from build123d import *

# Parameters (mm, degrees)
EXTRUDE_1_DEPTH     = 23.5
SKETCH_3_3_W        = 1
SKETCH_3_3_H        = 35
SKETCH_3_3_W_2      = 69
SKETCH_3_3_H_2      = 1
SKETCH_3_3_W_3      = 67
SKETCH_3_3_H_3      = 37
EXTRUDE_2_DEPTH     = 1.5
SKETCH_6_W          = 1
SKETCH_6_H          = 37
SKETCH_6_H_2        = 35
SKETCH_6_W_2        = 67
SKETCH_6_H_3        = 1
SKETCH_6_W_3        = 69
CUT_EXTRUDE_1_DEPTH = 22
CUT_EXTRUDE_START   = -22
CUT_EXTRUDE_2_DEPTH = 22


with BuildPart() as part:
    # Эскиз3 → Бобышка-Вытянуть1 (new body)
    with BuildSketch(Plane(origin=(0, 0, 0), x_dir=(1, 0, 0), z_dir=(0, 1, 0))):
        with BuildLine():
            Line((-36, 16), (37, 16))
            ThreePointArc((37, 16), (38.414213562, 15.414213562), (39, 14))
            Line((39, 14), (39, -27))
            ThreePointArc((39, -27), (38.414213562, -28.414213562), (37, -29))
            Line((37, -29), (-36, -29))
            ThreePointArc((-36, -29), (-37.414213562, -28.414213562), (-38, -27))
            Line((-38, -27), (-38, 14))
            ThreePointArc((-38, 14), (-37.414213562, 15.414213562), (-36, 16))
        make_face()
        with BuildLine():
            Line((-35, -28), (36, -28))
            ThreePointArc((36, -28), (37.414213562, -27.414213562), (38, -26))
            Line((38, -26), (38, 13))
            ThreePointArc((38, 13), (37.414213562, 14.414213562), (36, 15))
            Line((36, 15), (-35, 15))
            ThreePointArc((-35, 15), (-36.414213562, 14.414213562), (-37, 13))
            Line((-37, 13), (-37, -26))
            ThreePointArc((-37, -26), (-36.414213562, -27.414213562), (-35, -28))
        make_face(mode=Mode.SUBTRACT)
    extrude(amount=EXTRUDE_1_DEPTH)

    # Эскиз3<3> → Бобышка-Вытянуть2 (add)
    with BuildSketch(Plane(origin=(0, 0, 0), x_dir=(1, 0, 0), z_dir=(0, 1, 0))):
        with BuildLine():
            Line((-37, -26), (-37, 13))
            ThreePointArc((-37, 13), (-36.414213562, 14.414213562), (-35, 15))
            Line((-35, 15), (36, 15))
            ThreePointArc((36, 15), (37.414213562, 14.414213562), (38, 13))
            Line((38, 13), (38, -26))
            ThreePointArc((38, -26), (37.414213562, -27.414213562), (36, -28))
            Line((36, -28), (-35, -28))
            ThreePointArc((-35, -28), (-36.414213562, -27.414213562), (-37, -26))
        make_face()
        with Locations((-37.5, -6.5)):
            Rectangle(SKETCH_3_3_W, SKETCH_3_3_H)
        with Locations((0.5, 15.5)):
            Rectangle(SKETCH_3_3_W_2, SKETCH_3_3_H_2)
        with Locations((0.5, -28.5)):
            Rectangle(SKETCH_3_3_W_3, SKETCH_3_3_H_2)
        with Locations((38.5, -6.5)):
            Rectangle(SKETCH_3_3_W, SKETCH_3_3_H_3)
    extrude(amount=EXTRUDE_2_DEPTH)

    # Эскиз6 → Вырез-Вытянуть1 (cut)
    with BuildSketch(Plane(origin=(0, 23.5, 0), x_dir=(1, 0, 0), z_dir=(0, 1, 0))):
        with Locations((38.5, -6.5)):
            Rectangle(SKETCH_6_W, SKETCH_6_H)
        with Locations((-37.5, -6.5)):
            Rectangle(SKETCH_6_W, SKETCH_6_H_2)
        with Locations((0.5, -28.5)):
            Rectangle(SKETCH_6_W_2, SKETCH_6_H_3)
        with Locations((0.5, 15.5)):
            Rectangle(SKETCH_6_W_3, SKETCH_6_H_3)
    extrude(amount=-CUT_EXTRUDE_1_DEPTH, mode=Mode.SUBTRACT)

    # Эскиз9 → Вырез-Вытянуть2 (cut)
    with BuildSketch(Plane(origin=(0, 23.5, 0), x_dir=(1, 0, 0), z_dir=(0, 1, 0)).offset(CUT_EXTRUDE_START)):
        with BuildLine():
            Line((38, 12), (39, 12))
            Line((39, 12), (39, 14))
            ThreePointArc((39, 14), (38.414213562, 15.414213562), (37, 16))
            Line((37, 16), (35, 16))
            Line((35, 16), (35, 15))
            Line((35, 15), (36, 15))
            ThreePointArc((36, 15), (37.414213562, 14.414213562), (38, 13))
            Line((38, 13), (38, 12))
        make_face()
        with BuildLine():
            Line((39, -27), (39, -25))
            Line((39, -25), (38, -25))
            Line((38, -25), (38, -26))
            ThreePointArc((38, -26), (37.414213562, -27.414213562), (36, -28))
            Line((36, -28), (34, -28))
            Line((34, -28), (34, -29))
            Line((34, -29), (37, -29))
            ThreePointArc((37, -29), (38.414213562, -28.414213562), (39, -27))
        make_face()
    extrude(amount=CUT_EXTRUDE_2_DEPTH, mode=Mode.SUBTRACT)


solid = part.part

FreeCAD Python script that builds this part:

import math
import FreeCAD as App
import Part
import Sketcher

V = App.Vector
Q = App.Units.Quantity

doc = App.newDocument("Part")
body = doc.addObject("PartDesign::Body", "Body")

# Sketch on XZ plane
sketch1 = doc.addObject("Sketcher::SketchObject", "Sketch")
body.addObject(sketch1)
sketch1.AttachmentSupport = (doc.XZ_Plane, [""])
sketch1.MapMode = "FlatFace"
sketch1.addGeometry(Part.LineSegment(V(37, -16, 0), V(-36, -16, 0)), False)
sketch1.addGeometry(Part.ArcOfCircle(Part.Circle(V(-36, -14, 0), V(0, 0, 1), 2), math.radians(-180), math.radians(-90)), False)
sketch1.addGeometry(Part.LineSegment(V(-38, -14, 0), V(-38, 27, 0)), False)
sketch1.addGeometry(Part.ArcOfCircle(Part.Circle(V(-36, 27, 0), V(0, 0, 1), 2), math.radians(90), math.radians(180)), False)
sketch1.addGeometry(Part.LineSegment(V(-36, 29, 0), V(37, 29, 0)), False)
sketch1.addGeometry(Part.ArcOfCircle(Part.Circle(V(37, 27, 0), V(0, 0, 1), 2), math.radians(0), math.radians(90)), False)
sketch1.addGeometry(Part.LineSegment(V(39, 27, 0), V(39, -14, 0)), False)
sketch1.addGeometry(Part.ArcOfCircle(Part.Circle(V(37, -14, 0), V(0, 0, 1), 2), math.radians(-90), math.radians(0)), False)
sketch1.addGeometry(Part.ArcOfCircle(Part.Circle(V(-35, 26, 0), V(0, 0, 1), 2), math.radians(90), math.radians(180)), False)
sketch1.addGeometry(Part.LineSegment(V(-37, 26, 0), V(-37, -13, 0)), False)
sketch1.addGeometry(Part.ArcOfCircle(Part.Circle(V(-35, -13, 0), V(0, 0, 1), 2), math.radians(-180), math.radians(-90)), False)
sketch1.addGeometry(Part.LineSegment(V(-35, -15, 0), V(36, -15, 0)), False)
sketch1.addGeometry(Part.ArcOfCircle(Part.Circle(V(36, -13, 0), V(0, 0, 1), 2), math.radians(-90), math.radians(0)), False)
sketch1.addGeometry(Part.LineSegment(V(38, -13, 0), V(38, 26, 0)), False)
sketch1.addGeometry(Part.ArcOfCircle(Part.Circle(V(36, 26, 0), V(0, 0, 1), 2), math.radians(0), math.radians(90)), False)
sketch1.addGeometry(Part.LineSegment(V(36, 28, 0), V(-35, 28, 0)), False)
sketch1.addConstraint(Sketcher.Constraint("Tangent", 0, 2, 1, 2))
sketch1.addConstraint(Sketcher.Constraint("Tangent", 1, 1, 2, 1))
sketch1.addConstraint(Sketcher.Constraint("Tangent", 2, 2, 3, 2))
sketch1.addConstraint(Sketcher.Constraint("Tangent", 3, 1, 4, 1))
sketch1.addConstraint(Sketcher.Constraint("Tangent", 4, 2, 5, 2))
sketch1.addConstraint(Sketcher.Constraint("Tangent", 5, 1, 6, 1))
sketch1.addConstraint(Sketcher.Constraint("Tangent", 6, 2, 7, 2))
sketch1.addConstraint(Sketcher.Constraint("Tangent", 7, 1, 0, 1))
sketch1.addConstraint(Sketcher.Constraint("Tangent", 8, 2, 9, 1))
sketch1.addConstraint(Sketcher.Constraint("Tangent", 9, 2, 10, 1))
sketch1.addConstraint(Sketcher.Constraint("Tangent", 10, 2, 11, 1))
sketch1.addConstraint(Sketcher.Constraint("Tangent", 11, 2, 12, 1))
sketch1.addConstraint(Sketcher.Constraint("Tangent", 12, 2, 13, 1))
sketch1.addConstraint(Sketcher.Constraint("Tangent", 13, 2, 14, 1))
sketch1.addConstraint(Sketcher.Constraint("Tangent", 14, 2, 15, 1))
sketch1.addConstraint(Sketcher.Constraint("Tangent", 15, 2, 8, 1))
sketch1.addConstraint(Sketcher.Constraint("Horizontal", 0))
sketch1.addConstraint(Sketcher.Constraint("Vertical", 2))
sketch1.addConstraint(Sketcher.Constraint("Horizontal", 4))
sketch1.addConstraint(Sketcher.Constraint("Vertical", 6))
sketch1.addConstraint(Sketcher.Constraint("Vertical", 9))
sketch1.addConstraint(Sketcher.Constraint("Horizontal", 11))
sketch1.addConstraint(Sketcher.Constraint("Vertical", 13))
sketch1.addConstraint(Sketcher.Constraint("Horizontal", 15))
sketch1.addConstraint(Sketcher.Constraint("Equal", 1, 3))
sketch1.addConstraint(Sketcher.Constraint("Equal", 3, 5))
sketch1.addConstraint(Sketcher.Constraint("Equal", 5, 7))
sketch1.addConstraint(Sketcher.Constraint("Equal", 7, 8))
sketch1.addConstraint(Sketcher.Constraint("Equal", 8, 10))
sketch1.addConstraint(Sketcher.Constraint("Equal", 10, 12))
sketch1.addConstraint(Sketcher.Constraint("Equal", 12, 14))
sketch1.addConstraint(Sketcher.Constraint("Radius", 1, Q("2 mm")))
sketch1.addConstraint(Sketcher.Constraint("DistanceX", 0, 2, 0, 1, Q("73 mm")))
sketch1.addConstraint(Sketcher.Constraint("DistanceX", 11, 1, 11, 2, Q("71 mm")))
sketch1.addConstraint(Sketcher.Constraint("DistanceY", 2, 1, 2, 2, Q("41 mm")))
sketch1.addConstraint(Sketcher.Constraint("DistanceY", 9, 2, 9, 1, Q("39 mm")))
sketch1.addConstraint(Sketcher.Constraint("DistanceX", 1, 3, -1, 1, Q("36 mm")))
sketch1.addConstraint(Sketcher.Constraint("DistanceY", 1, 3, -1, 1, Q("14 mm")))
sketch1.addConstraint(Sketcher.Constraint("DistanceX", 8, 3, -1, 1, Q("35 mm")))
sketch1.addConstraint(Sketcher.Constraint("DistanceY", -1, 1, 8, 3, Q("26 mm")))
pad1 = doc.addObject("PartDesign::Pad", "Pad")
body.addObject(pad1)
pad1.Profile = sketch1
pad1.Length = 23.5
pad1.Reversed = True

# Sketch on XZ plane
sketch2 = doc.addObject("Sketcher::SketchObject", "Sketch001")
body.addObject(sketch2)
sketch2.AttachmentSupport = (doc.XZ_Plane, [""])
sketch2.MapMode = "FlatFace"
sketch2.addGeometry(Part.LineSegment(V(-37, 24, 0), V(-37, 26, 0)), False)
sketch2.addGeometry(Part.ArcOfCircle(Part.Circle(V(-35, 26, 0), V(0, 0, 1), 2), math.radians(90), math.radians(180)), False)
sketch2.addGeometry(Part.LineSegment(V(-35, 28, 0), V(-33, 28, 0)), False)
sketch2.addGeometry(Part.LineSegment(V(-33, 28, 0), V(-33, 29, 0)), False)
sketch2.addGeometry(Part.LineSegment(V(-33, 29, 0), V(34, 29, 0)), False)
sketch2.addGeometry(Part.LineSegment(V(34, 29, 0), V(34, 28, 0)), False)
sketch2.addGeometry(Part.LineSegment(V(34, 28, 0), V(36, 28, 0)), False)
sketch2.addGeometry(Part.ArcOfCircle(Part.Circle(V(36, 26, 0), V(0, 0, 1), 2), math.radians(0), math.radians(90)), False)
sketch2.addGeometry(Part.LineSegment(V(38, 26, 0), V(38, 25, 0)), False)
sketch2.addGeometry(Part.LineSegment(V(38, 25, 0), V(39, 25, 0)), False)
sketch2.addGeometry(Part.LineSegment(V(39, 25, 0), V(39, -12, 0)), False)
sketch2.addGeometry(Part.LineSegment(V(39, -12, 0), V(38, -12, 0)), False)
sketch2.addGeometry(Part.LineSegment(V(38, -12, 0), V(38, -13, 0)), False)
sketch2.addGeometry(Part.ArcOfCircle(Part.Circle(V(36, -13, 0), V(0, 0, 1), 2), math.radians(-90), math.radians(0)), False)
sketch2.addGeometry(Part.LineSegment(V(36, -15, 0), V(35, -15, 0)), False)
sketch2.addGeometry(Part.LineSegment(V(35, -15, 0), V(35, -16, 0)), False)
sketch2.addGeometry(Part.LineSegment(V(35, -16, 0), V(-34, -16, 0)), False)
sketch2.addGeometry(Part.LineSegment(V(-34, -16, 0), V(-34, -15, 0)), False)
sketch2.addGeometry(Part.LineSegment(V(-34, -15, 0), V(-35, -15, 0)), False)
sketch2.addGeometry(Part.ArcOfCircle(Part.Circle(V(-35, -13, 0), V(0, 0, 1), 2), math.radians(-180), math.radians(-90)), False)
sketch2.addGeometry(Part.LineSegment(V(-37, -13, 0), V(-37, -11, 0)), False)
sketch2.addGeometry(Part.LineSegment(V(-37, -11, 0), V(-38, -11, 0)), False)
sketch2.addGeometry(Part.LineSegment(V(-38, -11, 0), V(-38, 24, 0)), False)
sketch2.addGeometry(Part.LineSegment(V(-38, 24, 0), V(-37, 24, 0)), False)
sketch2.addConstraint(Sketcher.Constraint("Tangent", 0, 2, 1, 2))
sketch2.addConstraint(Sketcher.Constraint("Tangent", 1, 1, 2, 1))
sketch2.addConstraint(Sketcher.Constraint("Coincident", 2, 2, 3, 1))
sketch2.addConstraint(Sketcher.Constraint("Coincident", 3, 2, 4, 1))
sketch2.addConstraint(Sketcher.Constraint("Coincident", 4, 2, 5, 1))
sketch2.addConstraint(Sketcher.Constraint("Coincident", 5, 2, 6, 1))
sketch2.addConstraint(Sketcher.Constraint("Tangent", 6, 2, 7, 2))
sketch2.addConstraint(Sketcher.Constraint("Tangent", 7, 1, 8, 1))
sketch2.addConstraint(Sketcher.Constraint("Coincident", 8, 2, 9, 1))
sketch2.addConstraint(Sketcher.Constraint("Coincident", 9, 2, 10, 1))
sketch2.addConstraint(Sketcher.Constraint("Coincident", 10, 2, 11, 1))
sketch2.addConstraint(Sketcher.Constraint("Coincident", 11, 2, 12, 1))
sketch2.addConstraint(Sketcher.Constraint("Tangent", 12, 2, 13, 2))
sketch2.addConstraint(Sketcher.Constraint("Tangent", 13, 1, 14, 1))
sketch2.addConstraint(Sketcher.Constraint("Coincident", 14, 2, 15, 1))
sketch2.addConstraint(Sketcher.Constraint("Coincident", 15, 2, 16, 1))
sketch2.addConstraint(Sketcher.Constraint("Coincident", 16, 2, 17, 1))
sketch2.addConstraint(Sketcher.Constraint("Coincident", 17, 2, 18, 1))
sketch2.addConstraint(Sketcher.Constraint("Tangent", 18, 2, 19, 2))
sketch2.addConstraint(Sketcher.Constraint("Tangent", 19, 1, 20, 1))
sketch2.addConstraint(Sketcher.Constraint("Coincident", 20, 2, 21, 1))
sketch2.addConstraint(Sketcher.Constraint("Coincident", 21, 2, 22, 1))
sketch2.addConstraint(Sketcher.Constraint("Coincident", 22, 2, 23, 1))
sketch2.addConstraint(Sketcher.Constraint("Coincident", 23, 2, 0, 1))
sketch2.addConstraint(Sketcher.Constraint("Vertical", 0))
sketch2.addConstraint(Sketcher.Constraint("Horizontal", 2))
sketch2.addConstraint(Sketcher.Constraint("Vertical", 3))
sketch2.addConstraint(Sketcher.Constraint("Horizontal", 4))
sketch2.addConstraint(Sketcher.Constraint("Vertical", 5))
sketch2.addConstraint(Sketcher.Constraint("Horizontal", 6))
sketch2.addConstraint(Sketcher.Constraint("Vertical", 8))
sketch2.addConstraint(Sketcher.Constraint("Horizontal", 9))
sketch2.addConstraint(Sketcher.Constraint("Vertical", 10))
sketch2.addConstraint(Sketcher.Constraint("Horizontal", 11))
sketch2.addConstraint(Sketcher.Constraint("Vertical", 12))
sketch2.addConstraint(Sketcher.Constraint("Horizontal", 14))
sketch2.addConstraint(Sketcher.Constraint("Vertical", 15))
sketch2.addConstraint(Sketcher.Constraint("Horizontal", 16))
sketch2.addConstraint(Sketcher.Constraint("Vertical", 17))
sketch2.addConstraint(Sketcher.Constraint("Horizontal", 18))
sketch2.addConstraint(Sketcher.Constraint("Vertical", 20))
sketch2.addConstraint(Sketcher.Constraint("Horizontal", 21))
sketch2.addConstraint(Sketcher.Constraint("Vertical", 22))
sketch2.addConstraint(Sketcher.Constraint("Horizontal", 23))
sketch2.addConstraint(Sketcher.Constraint("Equal", 1, 7))
sketch2.addConstraint(Sketcher.Constraint("Equal", 7, 13))
sketch2.addConstraint(Sketcher.Constraint("Equal", 13, 19))
sketch2.addConstraint(Sketcher.Constraint("Symmetric", 14, 2, 18, 2, -2))
sketch2.addConstraint(Sketcher.Constraint("Horizontal", 1, 3, 7, 3))
sketch2.addConstraint(Sketcher.Constraint("Vertical", 7, 3, 13, 3))
sketch2.addConstraint(Sketcher.Constraint("Vertical", 1, 3, 19, 3))
sketch2.addConstraint(Sketcher.Constraint("Equal", 2, 6))
sketch2.addConstraint(Sketcher.Constraint("Equal", 11, 14))
sketch2.addConstraint(Sketcher.Constraint("Equal", 14, 18))
sketch2.addConstraint(Sketcher.Constraint("Equal", 18, 21))
sketch2.addConstraint(Sketcher.Constraint("Equal", 6, 0))
sketch2.addConstraint(Sketcher.Constraint("Equal", 23, 3))
sketch2.addConstraint(Sketcher.Constraint("Equal", 5, 8))
sketch2.addConstraint(Sketcher.Constraint("Equal", 8, 12))
sketch2.addConstraint(Sketcher.Constraint("Equal", 12, 15))
sketch2.addConstraint(Sketcher.Constraint("Equal", 0, 20))
sketch2.addConstraint(Sketcher.Constraint("Radius", 1, Q("2 mm")))
sketch2.addConstraint(Sketcher.Constraint("DistanceX", 2, 1, 2, 2, Q("2 mm")))
sketch2.addConstraint(Sketcher.Constraint("DistanceX", 4, 1, 4, 2, Q("67 mm")))
sketch2.addConstraint(Sketcher.Constraint("DistanceX", 9, 1, 9, 2, Q("1 mm")))
sketch2.addConstraint(Sketcher.Constraint("DistanceY", 10, 2, 10, 1, Q("37 mm")))
sketch2.addConstraint(Sketcher.Constraint("DistanceY", -1, 1, 1, 3, Q("26 mm")))
pad2 = doc.addObject("PartDesign::Pad", "Pad001")
body.addObject(pad2)
pad2.Profile = sketch2
pad2.Length = 1.5
pad2.Reversed = True

# Sketch on XZ plane
sketch3 = doc.addObject("Sketcher::SketchObject", "Sketch002")
body.addObject(sketch3)
sketch3.AttachmentSupport = (doc.XZ_Plane, [""])
sketch3.MapMode = "FlatFace"
sketch3.AttachmentOffset = App.Placement(V(0, 0, -23.5), App.Rotation())
sketch3.addGeometry(Part.LineSegment(V(38, -12, 0), V(38, 25, 0)), False)
sketch3.addGeometry(Part.LineSegment(V(38, 25, 0), V(39, 25, 0)), False)
sketch3.addGeometry(Part.LineSegment(V(39, 25, 0), V(39, -12, 0)), False)
sketch3.addGeometry(Part.LineSegment(V(39, -12, 0), V(38, -12, 0)), False)
sketch3.addGeometry(Part.LineSegment(V(-38, -11, 0), V(-38, 24, 0)), False)
sketch3.addGeometry(Part.LineSegment(V(-38, 24, 0), V(-37, 24, 0)), False)
sketch3.addGeometry(Part.LineSegment(V(-37, 24, 0), V(-37, -11, 0)), False)
sketch3.addGeometry(Part.LineSegment(V(-37, -11, 0), V(-38, -11, 0)), False)
sketch3.addGeometry(Part.LineSegment(V(-33, 28, 0), V(-33, 29, 0)), False)
sketch3.addGeometry(Part.LineSegment(V(-33, 29, 0), V(34, 29, 0)), False)
sketch3.addGeometry(Part.LineSegment(V(34, 29, 0), V(34, 28, 0)), False)
sketch3.addGeometry(Part.LineSegment(V(34, 28, 0), V(-33, 28, 0)), False)
sketch3.addGeometry(Part.LineSegment(V(-34, -16, 0), V(-34, -15, 0)), False)
sketch3.addGeometry(Part.LineSegment(V(-34, -15, 0), V(35, -15, 0)), False)
sketch3.addGeometry(Part.LineSegment(V(35, -15, 0), V(35, -16, 0)), False)
sketch3.addGeometry(Part.LineSegment(V(35, -16, 0), V(-34, -16, 0)), False)
sketch3.addConstraint(Sketcher.Constraint("Coincident", 0, 2, 1, 1))
sketch3.addConstraint(Sketcher.Constraint("Coincident", 1, 2, 2, 1))
sketch3.addConstraint(Sketcher.Constraint("Coincident", 2, 2, 3, 1))
sketch3.addConstraint(Sketcher.Constraint("Coincident", 3, 2, 0, 1))
sketch3.addConstraint(Sketcher.Constraint("Coincident", 4, 2, 5, 1))
sketch3.addConstraint(Sketcher.Constraint("Coincident", 5, 2, 6, 1))
sketch3.addConstraint(Sketcher.Constraint("Coincident", 6, 2, 7, 1))
sketch3.addConstraint(Sketcher.Constraint("Coincident", 7, 2, 4, 1))
sketch3.addConstraint(Sketcher.Constraint("Coincident", 8, 2, 9, 1))
sketch3.addConstraint(Sketcher.Constraint("Coincident", 9, 2, 10, 1))
sketch3.addConstraint(Sketcher.Constraint("Coincident", 10, 2, 11, 1))
sketch3.addConstraint(Sketcher.Constraint("Coincident", 11, 2, 8, 1))
sketch3.addConstraint(Sketcher.Constraint("Coincident", 12, 2, 13, 1))
sketch3.addConstraint(Sketcher.Constraint("Coincident", 13, 2, 14, 1))
sketch3.addConstraint(Sketcher.Constraint("Coincident", 14, 2, 15, 1))
sketch3.addConstraint(Sketcher.Constraint("Coincident", 15, 2, 12, 1))
sketch3.addConstraint(Sketcher.Constraint("Vertical", 0))
sketch3.addConstraint(Sketcher.Constraint("Horizontal", 1))
sketch3.addConstraint(Sketcher.Constraint("Vertical", 2))
sketch3.addConstraint(Sketcher.Constraint("Horizontal", 3))
sketch3.addConstraint(Sketcher.Constraint("Vertical", 4))
sketch3.addConstraint(Sketcher.Constraint("Horizontal", 5))
sketch3.addConstraint(Sketcher.Constraint("Vertical", 6))
sketch3.addConstraint(Sketcher.Constraint("Horizontal", 7))
sketch3.addConstraint(Sketcher.Constraint("Vertical", 8))
sketch3.addConstraint(Sketcher.Constraint("Horizontal", 9))
sketch3.addConstraint(Sketcher.Constraint("Vertical", 10))
sketch3.addConstraint(Sketcher.Constraint("Horizontal", 11))
sketch3.addConstraint(Sketcher.Constraint("Vertical", 12))
sketch3.addConstraint(Sketcher.Constraint("Horizontal", 13))
sketch3.addConstraint(Sketcher.Constraint("Vertical", 14))
sketch3.addConstraint(Sketcher.Constraint("Horizontal", 15))
sketch3.addConstraint(Sketcher.Constraint("Equal", 3, 5))
sketch3.addConstraint(Sketcher.Constraint("Equal", 7, 8))
sketch3.addConstraint(Sketcher.Constraint("Equal", 10, 12))
sketch3.addConstraint(Sketcher.Constraint("DistanceX", 1, 1, 1, 2, Q("1 mm")))
sketch3.addConstraint(Sketcher.Constraint("DistanceX", 9, 1, 9, 2, Q("67 mm")))
sketch3.addConstraint(Sketcher.Constraint("DistanceX", 13, 1, 13, 2, Q("69 mm")))
sketch3.addConstraint(Sketcher.Constraint("DistanceY", 0, 1, 0, 2, Q("37 mm")))
sketch3.addConstraint(Sketcher.Constraint("DistanceY", 4, 1, 4, 2, Q("35 mm")))
sketch3.addConstraint(Sketcher.Constraint("DistanceX", -1, 1, 0, 2, Q("38 mm")))
sketch3.addConstraint(Sketcher.Constraint("DistanceY", -1, 1, 0, 2, Q("25 mm")))
sketch3.addConstraint(Sketcher.Constraint("DistanceX", 4, 2, -1, 1, Q("38 mm")))
sketch3.addConstraint(Sketcher.Constraint("DistanceY", -1, 1, 4, 2, Q("24 mm")))
sketch3.addConstraint(Sketcher.Constraint("DistanceX", 8, 2, -1, 1, Q("33 mm")))
sketch3.addConstraint(Sketcher.Constraint("DistanceY", -1, 1, 8, 2, Q("29 mm")))
sketch3.addConstraint(Sketcher.Constraint("DistanceX", 12, 2, -1, 1, Q("34 mm")))
sketch3.addConstraint(Sketcher.Constraint("DistanceY", 12, 2, -1, 1, Q("15 mm")))
pocket1 = doc.addObject("PartDesign::Pocket", "Pocket")
body.addObject(pocket1)
pocket1.Profile = sketch3
pocket1.Length = 22
pocket1.Reversed = True

# Sketch on XZ plane
sketch4 = doc.addObject("Sketcher::SketchObject", "Sketch003")
body.addObject(sketch4)
sketch4.AttachmentSupport = (doc.XZ_Plane, [""])
sketch4.MapMode = "FlatFace"
sketch4.AttachmentOffset = App.Placement(V(0, 0, -1.5), App.Rotation())
sketch4.addGeometry(Part.LineSegment(V(38, -12, 0), V(39, -12, 0)), False)
sketch4.addGeometry(Part.LineSegment(V(39, -12, 0), V(39, -14, 0)), False)
sketch4.addGeometry(Part.ArcOfCircle(Part.Circle(V(37, -14, 0), V(0, 0, 1), 2), math.radians(-90), math.radians(0)), False)
sketch4.addGeometry(Part.LineSegment(V(37, -16, 0), V(35, -16, 0)), False)
sketch4.addGeometry(Part.LineSegment(V(35, -16, 0), V(35, -15, 0)), False)
sketch4.addGeometry(Part.LineSegment(V(35, -15, 0), V(36, -15, 0)), False)
sketch4.addGeometry(Part.ArcOfCircle(Part.Circle(V(36, -13, 0), V(0, 0, 1), 2), math.radians(-90), math.radians(0)), False)
sketch4.addGeometry(Part.LineSegment(V(38, -13, 0), V(38, -12, 0)), False)
sketch4.addGeometry(Part.LineSegment(V(39, 27, 0), V(39, 25, 0)), False)
sketch4.addGeometry(Part.LineSegment(V(39, 25, 0), V(38, 25, 0)), False)
sketch4.addGeometry(Part.LineSegment(V(38, 25, 0), V(38, 26, 0)), False)
sketch4.addGeometry(Part.ArcOfCircle(Part.Circle(V(36, 26, 0), V(0, 0, 1), 2), math.radians(0), math.radians(90)), False)
sketch4.addGeometry(Part.LineSegment(V(36, 28, 0), V(34, 28, 0)), False)
sketch4.addGeometry(Part.LineSegment(V(34, 28, 0), V(34, 29, 0)), False)
sketch4.addGeometry(Part.LineSegment(V(34, 29, 0), V(37, 29, 0)), False)
sketch4.addGeometry(Part.ArcOfCircle(Part.Circle(V(37, 27, 0), V(0, 0, 1), 2), math.radians(0), math.radians(90)), False)
sketch4.addConstraint(Sketcher.Constraint("Coincident", 0, 2, 1, 1))
sketch4.addConstraint(Sketcher.Constraint("Tangent", 1, 2, 2, 2))
sketch4.addConstraint(Sketcher.Constraint("Tangent", 2, 1, 3, 1))
sketch4.addConstraint(Sketcher.Constraint("Coincident", 3, 2, 4, 1))
sketch4.addConstraint(Sketcher.Constraint("Coincident", 4, 2, 5, 1))
sketch4.addConstraint(Sketcher.Constraint("Tangent", 5, 2, 6, 1))
sketch4.addConstraint(Sketcher.Constraint("Tangent", 6, 2, 7, 1))
sketch4.addConstraint(Sketcher.Constraint("Coincident", 7, 2, 0, 1))
sketch4.addConstraint(Sketcher.Constraint("Coincident", 8, 2, 9, 1))
sketch4.addConstraint(Sketcher.Constraint("Coincident", 9, 2, 10, 1))
sketch4.addConstraint(Sketcher.Constraint("Tangent", 10, 2, 11, 1))
sketch4.addConstraint(Sketcher.Constraint("Tangent", 11, 2, 12, 1))
sketch4.addConstraint(Sketcher.Constraint("Coincident", 12, 2, 13, 1))
sketch4.addConstraint(Sketcher.Constraint("Coincident", 13, 2, 14, 1))
sketch4.addConstraint(Sketcher.Constraint("Tangent", 14, 2, 15, 2))
sketch4.addConstraint(Sketcher.Constraint("Tangent", 15, 1, 8, 1))
sketch4.addConstraint(Sketcher.Constraint("Horizontal", 0))
sketch4.addConstraint(Sketcher.Constraint("Vertical", 1))
sketch4.addConstraint(Sketcher.Constraint("Horizontal", 3))
sketch4.addConstraint(Sketcher.Constraint("Vertical", 4))
sketch4.addConstraint(Sketcher.Constraint("Horizontal", 5))
sketch4.addConstraint(Sketcher.Constraint("Vertical", 7))
sketch4.addConstraint(Sketcher.Constraint("Vertical", 8))
sketch4.addConstraint(Sketcher.Constraint("Horizontal", 9))
sketch4.addConstraint(Sketcher.Constraint("Vertical", 10))
sketch4.addConstraint(Sketcher.Constraint("Horizontal", 12))
sketch4.addConstraint(Sketcher.Constraint("Vertical", 13))
sketch4.addConstraint(Sketcher.Constraint("Horizontal", 14))
sketch4.addConstraint(Sketcher.Constraint("Equal", 2, 6))
sketch4.addConstraint(Sketcher.Constraint("Equal", 6, 11))
sketch4.addConstraint(Sketcher.Constraint("Equal", 11, 15))
sketch4.addConstraint(Sketcher.Constraint("Vertical", 6, 3, 11, 3))
sketch4.addConstraint(Sketcher.Constraint("Vertical", 2, 3, 15, 3))
sketch4.addConstraint(Sketcher.Constraint("Equal", 0, 5))
sketch4.addConstraint(Sketcher.Constraint("Equal", 3, 12))
sketch4.addConstraint(Sketcher.Constraint("Equal", 12, 1))
sketch4.addConstraint(Sketcher.Constraint("Equal", 9, 4))
sketch4.addConstraint(Sketcher.Constraint("Equal", 1, 8))
sketch4.addConstraint(Sketcher.Constraint("Equal", 7, 10))
sketch4.addConstraint(Sketcher.Constraint("Radius", 2, Q("2 mm")))
sketch4.addConstraint(Sketcher.Constraint("DistanceX", 0, 1, 0, 2, Q("1 mm")))
sketch4.addConstraint(Sketcher.Constraint("DistanceX", -1, 1, 2, 3, Q("37 mm")))
sketch4.addConstraint(Sketcher.Constraint("DistanceY", 2, 3, -1, 1, Q("14 mm")))
sketch4.addConstraint(Sketcher.Constraint("DistanceY", -1, 1, 11, 3, Q("26 mm")))
pocket2 = doc.addObject("PartDesign::Pocket", "Pocket001")
body.addObject(pocket2)
pocket2.Profile = sketch4
pocket2.Length = 22

doc.recompute()
